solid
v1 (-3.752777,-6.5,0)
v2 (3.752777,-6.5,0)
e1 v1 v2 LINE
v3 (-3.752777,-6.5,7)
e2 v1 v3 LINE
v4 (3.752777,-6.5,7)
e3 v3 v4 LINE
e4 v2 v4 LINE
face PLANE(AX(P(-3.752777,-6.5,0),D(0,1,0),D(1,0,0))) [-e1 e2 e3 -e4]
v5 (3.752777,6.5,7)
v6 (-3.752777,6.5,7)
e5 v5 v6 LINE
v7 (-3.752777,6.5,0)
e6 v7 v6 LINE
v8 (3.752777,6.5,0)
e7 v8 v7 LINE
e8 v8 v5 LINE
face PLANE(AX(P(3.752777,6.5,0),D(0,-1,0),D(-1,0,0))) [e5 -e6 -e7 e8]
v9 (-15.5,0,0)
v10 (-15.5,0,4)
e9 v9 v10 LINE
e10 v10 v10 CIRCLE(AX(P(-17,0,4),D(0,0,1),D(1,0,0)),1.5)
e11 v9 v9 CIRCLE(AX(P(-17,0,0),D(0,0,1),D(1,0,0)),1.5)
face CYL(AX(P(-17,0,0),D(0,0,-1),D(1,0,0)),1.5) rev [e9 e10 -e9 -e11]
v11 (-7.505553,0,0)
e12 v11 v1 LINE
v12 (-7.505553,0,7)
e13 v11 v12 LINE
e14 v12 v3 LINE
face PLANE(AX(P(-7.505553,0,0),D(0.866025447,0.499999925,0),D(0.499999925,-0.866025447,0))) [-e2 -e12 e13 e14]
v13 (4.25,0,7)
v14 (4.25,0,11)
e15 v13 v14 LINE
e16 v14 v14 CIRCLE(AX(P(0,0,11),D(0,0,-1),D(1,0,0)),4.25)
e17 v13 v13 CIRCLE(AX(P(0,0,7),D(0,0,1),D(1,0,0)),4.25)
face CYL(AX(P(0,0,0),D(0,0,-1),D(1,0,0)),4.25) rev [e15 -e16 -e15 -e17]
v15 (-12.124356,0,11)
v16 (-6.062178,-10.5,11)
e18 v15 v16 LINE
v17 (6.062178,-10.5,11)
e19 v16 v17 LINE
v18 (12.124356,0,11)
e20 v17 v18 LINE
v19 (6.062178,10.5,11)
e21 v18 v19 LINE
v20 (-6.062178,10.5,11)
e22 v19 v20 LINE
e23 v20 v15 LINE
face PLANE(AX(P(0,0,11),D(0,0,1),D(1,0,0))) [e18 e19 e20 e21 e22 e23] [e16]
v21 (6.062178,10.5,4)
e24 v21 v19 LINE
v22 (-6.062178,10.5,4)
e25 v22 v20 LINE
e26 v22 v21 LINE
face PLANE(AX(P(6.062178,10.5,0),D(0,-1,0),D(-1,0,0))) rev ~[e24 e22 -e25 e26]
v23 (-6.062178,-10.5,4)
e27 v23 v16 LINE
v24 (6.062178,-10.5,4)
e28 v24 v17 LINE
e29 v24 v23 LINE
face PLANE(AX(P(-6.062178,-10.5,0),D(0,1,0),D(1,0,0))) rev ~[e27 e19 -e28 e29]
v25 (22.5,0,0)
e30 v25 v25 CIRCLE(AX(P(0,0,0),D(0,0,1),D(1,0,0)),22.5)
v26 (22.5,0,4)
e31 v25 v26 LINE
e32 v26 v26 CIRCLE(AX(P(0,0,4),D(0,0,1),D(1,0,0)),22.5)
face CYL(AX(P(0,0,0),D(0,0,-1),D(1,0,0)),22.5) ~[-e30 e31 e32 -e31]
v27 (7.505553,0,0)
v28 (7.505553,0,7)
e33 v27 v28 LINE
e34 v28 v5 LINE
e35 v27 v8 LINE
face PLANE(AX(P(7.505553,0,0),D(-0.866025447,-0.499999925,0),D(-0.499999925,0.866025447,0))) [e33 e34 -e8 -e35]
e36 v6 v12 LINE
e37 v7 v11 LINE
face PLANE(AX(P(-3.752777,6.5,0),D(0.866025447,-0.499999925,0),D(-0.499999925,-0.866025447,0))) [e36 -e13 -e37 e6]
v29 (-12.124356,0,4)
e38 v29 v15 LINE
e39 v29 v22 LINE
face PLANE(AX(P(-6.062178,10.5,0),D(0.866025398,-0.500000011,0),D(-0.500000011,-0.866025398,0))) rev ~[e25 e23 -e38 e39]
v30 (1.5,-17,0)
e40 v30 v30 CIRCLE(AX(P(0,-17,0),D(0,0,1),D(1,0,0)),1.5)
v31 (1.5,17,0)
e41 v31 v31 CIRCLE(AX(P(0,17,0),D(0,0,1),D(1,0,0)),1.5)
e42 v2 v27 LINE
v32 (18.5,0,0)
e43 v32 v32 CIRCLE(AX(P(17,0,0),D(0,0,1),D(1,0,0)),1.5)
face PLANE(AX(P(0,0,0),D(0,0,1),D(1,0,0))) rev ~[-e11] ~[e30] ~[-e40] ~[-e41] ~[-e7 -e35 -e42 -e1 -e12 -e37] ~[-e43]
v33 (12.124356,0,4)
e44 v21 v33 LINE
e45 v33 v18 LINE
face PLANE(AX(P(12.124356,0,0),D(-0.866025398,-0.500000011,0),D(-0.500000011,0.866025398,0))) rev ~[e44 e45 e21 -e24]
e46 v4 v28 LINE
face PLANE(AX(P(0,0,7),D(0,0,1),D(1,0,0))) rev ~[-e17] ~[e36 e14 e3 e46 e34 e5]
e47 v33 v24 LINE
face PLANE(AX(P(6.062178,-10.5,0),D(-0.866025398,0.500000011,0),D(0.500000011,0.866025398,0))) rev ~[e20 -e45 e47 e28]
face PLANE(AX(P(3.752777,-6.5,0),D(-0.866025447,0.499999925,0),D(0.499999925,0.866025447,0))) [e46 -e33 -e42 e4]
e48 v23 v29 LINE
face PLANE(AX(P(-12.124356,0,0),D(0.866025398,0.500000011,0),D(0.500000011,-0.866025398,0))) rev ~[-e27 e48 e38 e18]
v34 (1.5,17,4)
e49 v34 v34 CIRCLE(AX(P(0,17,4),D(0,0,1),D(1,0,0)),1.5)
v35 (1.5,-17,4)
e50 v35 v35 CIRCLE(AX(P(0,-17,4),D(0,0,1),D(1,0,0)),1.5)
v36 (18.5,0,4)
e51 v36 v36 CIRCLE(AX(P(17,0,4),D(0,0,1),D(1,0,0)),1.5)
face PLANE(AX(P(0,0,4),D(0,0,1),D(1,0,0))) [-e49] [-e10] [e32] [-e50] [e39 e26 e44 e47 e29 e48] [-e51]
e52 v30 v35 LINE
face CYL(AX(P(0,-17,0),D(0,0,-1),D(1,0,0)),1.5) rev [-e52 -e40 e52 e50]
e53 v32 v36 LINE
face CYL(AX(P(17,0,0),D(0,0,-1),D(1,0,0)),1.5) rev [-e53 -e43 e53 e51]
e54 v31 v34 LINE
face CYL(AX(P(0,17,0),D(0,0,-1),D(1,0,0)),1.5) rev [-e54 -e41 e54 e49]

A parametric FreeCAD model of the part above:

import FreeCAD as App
import Part
import Sketcher
from FreeCAD import Vector
Q = App.Units.Quantity


def add_polygon(sketch, points):
    """Adds a closed chain of lines whose ends are joined by coincident constraints."""
    first, n = sketch.GeometryCount, len(points)
    for a, b in zip(points, points[1:] + points[:1]):
        sketch.addGeometry(Part.LineSegment(App.Vector(*a, 0), App.Vector(*b, 0)), False)
    for i in range(n):
        sketch.addConstraint(Sketcher.Constraint("Coincident", first + i, 2, first + (i + 1) % n, 1))

doc = App.newDocument("Part")
body = doc.addObject("PartDesign::Body", "Body")

sketch1 = body.newObject("Sketcher::SketchObject", "Sketch")
sketch1.AttachmentSupport = (doc.getObject("XY_Plane"), [""])
sketch1.MapMode = "FlatFace"
sketch1.addGeometry(Part.Circle(Vector(0, 0, 0), Vector(0, 0, 1), 22.5), False)
sketch1.addGeometry(Part.Circle(Vector(0, -17, 0), Vector(0, 0, 1), 1.5), False)
sketch1.addGeometry(Part.Circle(Vector(-17, 0, 0), Vector(0, 0, 1), 1.5), False)
add_polygon(sketch1, [(12.1, 0), (6.1, -10.5), (-6.1, -10.5), (-12.1, 0), (-6.1, 10.5), (6.1, 10.5)])
sketch1.addGeometry(Part.Circle(Vector(17, 0, 0), Vector(0, 0, 1), 1.5), False)
sketch1.addGeometry(Part.Circle(Vector(0, 17, 0), Vector(0, 0, 1), 1.5), False)
sketch1.addConstraint(Sketcher.Constraint("Horizontal", 4))
sketch1.addConstraint(Sketcher.Constraint("Horizontal", 7))
sketch1.addConstraint(Sketcher.Constraint("Coincident", 0, 3, -1, 1))
sketch1.addConstraint(Sketcher.Constraint("Equal", 1, 2))
sketch1.addConstraint(Sketcher.Constraint("Equal", 2, 9))
sketch1.addConstraint(Sketcher.Constraint("Equal", 9, 10))
sketch1.addConstraint(Sketcher.Constraint("Symmetric", 2, 3, 9, 3, -1, 1))
sketch1.addConstraint(Sketcher.Constraint("Symmetric", 1, 3, 10, 3, -1, 1))
sketch1.addConstraint(Sketcher.Constraint("Symmetric", 3, 2, 6, 2, -1, 1))
sketch1.addConstraint(Sketcher.Constraint("Symmetric", 5, 2, 8, 2, -1, 1))
sketch1.addConstraint(Sketcher.Constraint("PointOnObject", 1, 3, -2))
sketch1.addConstraint(Sketcher.Constraint("PointOnObject", 2, 3, -1))
sketch1.addConstraint(Sketcher.Constraint("PointOnObject", 5, 2, -1))
sketch1.addConstraint(Sketcher.Constraint("Parallel", 5, 8))
sketch1.addConstraint(Sketcher.Constraint("Vertical", 4, 2, 6, 2))
sketch1.addConstraint(Sketcher.Constraint("Diameter", 0, Q("45 mm")))
sketch1.addConstraint(Sketcher.Constraint("Diameter", 1, Q("3 mm")))
sketch1.addConstraint(Sketcher.Constraint("Angle", 3, Q("-120.000001 deg")))
sketch1.addConstraint(Sketcher.Constraint("DistanceY", 1, 3, -1, 1, Q("17 mm")))
sketch1.addConstraint(Sketcher.Constraint("DistanceX", 2, 3, -1, 1, Q("17 mm")))
sketch1.addConstraint(Sketcher.Constraint("DistanceY", 4, 2, 6, 2, Q("21 mm")))
sketch1.addConstraint(Sketcher.Constraint("DistanceX", 4, 2, 4, 1, Q("12.124356 mm")))
pad1 = body.newObject("PartDesign::Pad", "Pad")
pad1.Profile = sketch1
pad1.Length = 4

sketch2 = body.newObject("Sketcher::SketchObject", "Sketch001")
sketch2.AttachmentSupport = (doc.getObject("XY_Plane"), [""])
sketch2.MapMode = "FlatFace"
add_polygon(sketch2, [(-12, 0), (-6, -10), (6, -10), (12, 0), (6, 10), (-6, 10)])
sketch2.addConstraint(Sketcher.Constraint("Horizontal", 1))
sketch2.addConstraint(Sketcher.Constraint("Horizontal", 4))
sketch2.addConstraint(Sketcher.Constraint("Symmetric", 0, 2, 3, 2, -1, 1))
sketch2.addConstraint(Sketcher.Constraint("Symmetric", 2, 2, 5, 2, -1, 1))
sketch2.addConstraint(Sketcher.Constraint("PointOnObject", 2, 2, -1))
sketch2.addConstraint(Sketcher.Constraint("Parallel", 2, 5))
sketch2.addConstraint(Sketcher.Constraint("Vertical", 1, 2, 3, 2))
sketch2.addConstraint(Sketcher.Constraint("Angle", 0, Q("-59.999999 deg")))
sketch2.addConstraint(Sketcher.Constraint("DistanceY", 1, 2, 3, 2, Q("21 mm")))
sketch2.addConstraint(Sketcher.Constraint("DistanceX", 1, 1, 1, 2, Q("12.124356 mm")))
pad2 = body.newObject("PartDesign::Pad", "Pad001")
pad2.Profile = sketch2
pad2.Length = 11

sketch3 = body.newObject("Sketcher::SketchObject", "Sketch002")
sketch3.AttachmentSupport = (doc.getObject("XY_Plane"), [""])
sketch3.MapMode = "FlatFace"
sketch3.addGeometry(Part.Circle(Vector(0, 0, 0), Vector(0, 0, 1), 4.2), False)
sketch3.addConstraint(Sketcher.Constraint("Coincident", 0, 3, -1, 1))
sketch3.addConstraint(Sketcher.Constraint("Diameter", 0, Q("8.5 mm")))
pocket1 = body.newObject("PartDesign::Pocket", "Pocket")
pocket1.Profile = sketch3
pocket1.Length = 25
pocket1.Reversed = True

sketch4 = body.newObject("Sketcher::SketchObject", "Sketch003")
sketch4.AttachmentSupport = (doc.getObject("XY_Plane"), [""])
sketch4.MapMode = "FlatFace"
add_polygon(sketch4, [(-3.8, -6.5), (3.8, -6.5), (7.5, 0), (3.8, 6.5), (-3.8, 6.5), (-7.5, 0)])
sketch4.addGeometry(Part.Circle(Vector(0, 0, 0), Vector(0, 0, 1), 4.2), False)
sketch4.addConstraint(Sketcher.Constraint("Horizontal", 0))
sketch4.addConstraint(Sketcher.Constraint("Horizontal", 3))
sketch4.addConstraint(Sketcher.Constraint("Coincident", 6, 3, -1, 1))
sketch4.addConstraint(Sketcher.Constraint("Symmetric", 0, 2, 3, 2, -1, 1))
sketch4.addConstraint(Sketcher.Constraint("Symmetric", 1, 2, 4, 2, -1, 1))
sketch4.addConstraint(Sketcher.Constraint("PointOnObject", 1, 2, -1))
sketch4.addConstraint(Sketcher.Constraint("Parallel", 2, 5))
sketch4.addConstraint(Sketcher.Constraint("Vertical", 0, 2, 2, 2))
sketch4.addConstraint(Sketcher.Constraint("Diameter", 6, Q("8.5 mm")))
sketch4.addConstraint(Sketcher.Constraint("Angle", 1, Q("60.000005 deg")))
sketch4.addConstraint(Sketcher.Constraint("DistanceY", 0, 2, 2, 2, Q("13 mm")))
sketch4.addConstraint(Sketcher.Constraint("DistanceX", 0, 1, 0, 2, Q("7.505554 mm")))
pocket2 = body.newObject("PartDesign::Pocket", "Pocket001")
pocket2.Profile = sketch4
pocket2.Length = 7
pocket2.Reversed = True

doc.recompute()
